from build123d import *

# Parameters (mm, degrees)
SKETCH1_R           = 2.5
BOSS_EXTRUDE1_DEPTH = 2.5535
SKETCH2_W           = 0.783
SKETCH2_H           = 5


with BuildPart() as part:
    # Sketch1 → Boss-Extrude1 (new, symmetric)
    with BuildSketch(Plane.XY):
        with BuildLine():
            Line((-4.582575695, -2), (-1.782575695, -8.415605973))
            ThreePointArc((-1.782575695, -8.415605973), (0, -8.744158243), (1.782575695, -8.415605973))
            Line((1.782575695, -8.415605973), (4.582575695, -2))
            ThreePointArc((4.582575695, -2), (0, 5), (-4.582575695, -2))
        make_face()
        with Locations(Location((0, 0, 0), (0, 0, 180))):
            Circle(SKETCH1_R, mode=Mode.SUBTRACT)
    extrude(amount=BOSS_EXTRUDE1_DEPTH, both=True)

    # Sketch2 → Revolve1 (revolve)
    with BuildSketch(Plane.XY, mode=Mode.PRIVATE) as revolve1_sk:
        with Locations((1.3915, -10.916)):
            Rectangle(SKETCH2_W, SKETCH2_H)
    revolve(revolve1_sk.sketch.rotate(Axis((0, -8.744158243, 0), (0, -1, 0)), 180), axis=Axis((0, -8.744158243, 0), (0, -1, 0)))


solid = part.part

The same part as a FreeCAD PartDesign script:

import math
import FreeCAD as App
import Part
import Sketcher

doc = App.newDocument("Part")
params = doc.addObject("Spreadsheet::Sheet", "Params")
for row, (alias, value) in enumerate([
    ("sketch1_diameter", "5 mm"),
    ("sketch1_radius", "5 mm"),
    ("sketch1_length", "7 mm"),
    ("pad1_length", "5.107 mm"),
    ("sketch2_height", "5 mm"),
    ("revolution_angle", "360 deg"),
], start=1):
    params.set(f"A{row}", alias)
    params.set(f"B{row}", "=" + value)
    params.setAlias(f"B{row}", alias)

body = doc.addObject("PartDesign::Body", "Body")

# Sketch on XY plane
sketch1 = doc.addObject("Sketcher::SketchObject", "Sketch")
body.addObject(sketch1)
sketch1.AttachmentSupport = (doc.XY_Plane, [""])
sketch1.MapMode = "FlatFace"
sketch1.addGeometry(Part.LineSegment(App.Vector(-4.6, -2, 0), App.Vector(-1.8, -8.4, 0)), False)
sketch1.addGeometry(Part.ArcOfCircle(Part.Circle(App.Vector(0, -3.7, 0), App.Vector(0, 0, 1), 5), math.radians(-111), math.radians(-69)), False)
sketch1.addGeometry(Part.LineSegment(App.Vector(1.8, -8.4, 0), App.Vector(4.6, -2, 0)), False)
sketch1.addGeometry(Part.ArcOfCircle(Part.Circle(App.Vector(0, 0, 0), App.Vector(0, 0, 1), 5), math.radians(-24), math.radians(204)), False)
sketch1.addGeometry(Part.Circle(App.Vector(0, 0, 0), App.Vector(0, 0, 1), 2.5), False)
sketch1.addConstraint(Sketcher.Constraint("Coincident", 0, 2, 1, 1))
sketch1.addConstraint(Sketcher.Constraint("Coincident", 1, 2, 2, 1))
sketch1.addConstraint(Sketcher.Constraint("Tangent", 2, 2, 3, 1))
sketch1.addConstraint(Sketcher.Constraint("Tangent", 3, 2, 0, 1))
sketch1.addConstraint(Sketcher.Constraint("Coincident", 3, 3, -1, 1))
sketch1.addConstraint(Sketcher.Constraint("Coincident", 4, 3, -1, 1))
sketch1.addConstraint(Sketcher.Constraint("Equal", 1, 3))
sketch1.addConstraint(Sketcher.Constraint("Symmetric", 0, 2, 1, 2, -2))
sketch1.addConstraint(Sketcher.Constraint("Diameter", 4, 5.0))
sketch1.addConstraint(Sketcher.Constraint("Radius", 1, 5.0))
sketch1.addConstraint(Sketcher.Constraint("Distance", 0, 7.0))
sketch1.addConstraint(Sketcher.Constraint("DistanceY", 2, 2, -1, 1, 2.0))
sketch1.setExpression("Constraints[8]", "Params.sketch1_diameter")
sketch1.setExpression("Constraints[9]", "Params.sketch1_radius")
sketch1.setExpression("Constraints[10]", "Params.sketch1_length")
pad1 = doc.addObject("PartDesign::Pad", "Pad")
body.addObject(pad1)
pad1.Profile = sketch1
pad1.setExpression("Length", "Params.pad1_length")
pad1.Midplane = True

# Sketch on XY plane
sketch2 = doc.addObject("Sketcher::SketchObject", "Sketch001")
body.addObject(sketch2)
sketch2.AttachmentSupport = (doc.XY_Plane, [""])
sketch2.MapMode = "FlatFace"
sketch2.addGeometry(Part.LineSegment(App.Vector(1, -8.4, 0), App.Vector(1, -13.4, 0)), False)
sketch2.addGeometry(Part.LineSegment(App.Vector(1, -13.4, 0), App.Vector(1.8, -13.4, 0)), False)
sketch2.addGeometry(Part.LineSegment(App.Vector(1.8, -13.4, 0), App.Vector(1.8, -8.4, 0)), False)
sketch2.addGeometry(Part.LineSegment(App.Vector(1.8, -8.4, 0), App.Vector(1, -8.4, 0)), False)
sketch2.addConstraint(Sketcher.Constraint("Coincident", 0, 2, 1, 1))
sketch2.addConstraint(Sketcher.Constraint("Coincident", 1, 2, 2, 1))
sketch2.addConstraint(Sketcher.Constraint("Coincident", 2, 2, 3, 1))
sketch2.addConstraint(Sketcher.Constraint("Coincident", 3, 2, 0, 1))
sketch2.addConstraint(Sketcher.Constraint("Vertical", 0))
sketch2.addConstraint(Sketcher.Constraint("Horizontal", 1))
sketch2.addConstraint(Sketcher.Constraint("Vertical", 2))
sketch2.addConstraint(Sketcher.Constraint("Horizontal", 3))
sketch2.addConstraint(Sketcher.Constraint("DistanceY", 0, 2, 0, 1, 5.0))
sketch2.addConstraint(Sketcher.Constraint("DistanceX", -1, 1, 0, 2, 1.0))
sketch2.addConstraint(Sketcher.Constraint("DistanceX", 1, 1, 1, 2, 0.783))
sketch2.addConstraint(Sketcher.Constraint("DistanceY", 0, 2, -1, 1, 13.416))
sketch2.setExpression("Constraints[8]", "Params.sketch2_height")
revolution = doc.addObject("PartDesign::Revolution", "Revolution")
body.addObject(revolution)
revolution.Profile = sketch2
revolution.ReferenceAxis = (sketch2, ["V_Axis"])
revolution.setExpression("Angle", "Params.revolution_angle")

doc.recompute()
